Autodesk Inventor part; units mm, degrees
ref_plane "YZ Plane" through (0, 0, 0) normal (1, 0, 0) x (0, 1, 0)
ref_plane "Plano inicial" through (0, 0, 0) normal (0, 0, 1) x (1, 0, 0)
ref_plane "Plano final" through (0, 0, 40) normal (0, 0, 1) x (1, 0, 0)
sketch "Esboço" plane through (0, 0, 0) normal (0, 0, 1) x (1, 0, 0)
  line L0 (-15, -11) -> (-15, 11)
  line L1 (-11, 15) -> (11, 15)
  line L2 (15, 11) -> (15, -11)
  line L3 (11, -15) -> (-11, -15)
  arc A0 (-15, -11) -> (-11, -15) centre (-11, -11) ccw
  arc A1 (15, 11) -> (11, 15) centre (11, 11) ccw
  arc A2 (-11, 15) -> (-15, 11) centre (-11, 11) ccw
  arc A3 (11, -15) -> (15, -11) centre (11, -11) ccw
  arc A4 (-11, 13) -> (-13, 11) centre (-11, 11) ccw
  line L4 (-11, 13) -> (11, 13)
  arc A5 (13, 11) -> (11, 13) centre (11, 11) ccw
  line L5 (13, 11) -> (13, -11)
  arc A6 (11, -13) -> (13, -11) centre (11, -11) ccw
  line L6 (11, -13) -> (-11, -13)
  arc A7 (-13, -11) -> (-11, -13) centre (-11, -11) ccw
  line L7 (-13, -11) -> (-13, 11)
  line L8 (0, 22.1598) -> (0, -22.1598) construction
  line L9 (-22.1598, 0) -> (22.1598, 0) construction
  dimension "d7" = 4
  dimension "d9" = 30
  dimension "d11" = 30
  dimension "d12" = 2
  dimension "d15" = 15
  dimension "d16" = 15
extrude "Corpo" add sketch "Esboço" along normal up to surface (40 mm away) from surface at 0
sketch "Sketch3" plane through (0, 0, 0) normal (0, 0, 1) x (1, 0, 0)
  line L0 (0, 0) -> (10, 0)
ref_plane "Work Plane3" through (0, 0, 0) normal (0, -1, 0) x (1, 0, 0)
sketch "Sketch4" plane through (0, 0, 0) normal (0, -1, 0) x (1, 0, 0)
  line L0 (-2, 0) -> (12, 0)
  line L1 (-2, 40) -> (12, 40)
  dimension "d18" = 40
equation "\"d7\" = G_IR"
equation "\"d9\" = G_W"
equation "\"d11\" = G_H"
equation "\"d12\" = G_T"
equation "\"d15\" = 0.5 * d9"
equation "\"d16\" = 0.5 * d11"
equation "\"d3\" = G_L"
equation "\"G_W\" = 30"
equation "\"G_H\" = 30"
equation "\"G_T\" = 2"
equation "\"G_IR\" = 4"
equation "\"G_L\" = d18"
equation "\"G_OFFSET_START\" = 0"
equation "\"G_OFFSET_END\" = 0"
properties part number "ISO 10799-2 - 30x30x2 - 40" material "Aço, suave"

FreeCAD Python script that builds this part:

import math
import FreeCAD as App
import Part
import Sketcher
Q = App.Units.Quantity

doc = App.newDocument("Part")
body = doc.addObject("PartDesign::Body", "Body")

sketch1 = doc.addObject("Sketcher::SketchObject", "Sketch")
body.addObject(sketch1)
sketch1.AttachmentSupport = (doc.XY_Plane, [""])
sketch1.MapMode = "FlatFace"
sketch1.addGeometry([
    Part.LineSegment(App.Vector(-15, 11, 0), App.Vector(-15, -11, 0)),
    Part.ArcOfCircle(Part.Circle(App.Vector(-11, -11, 0), App.Vector(0, 0, 1), 4), math.radians(180), math.radians(270)),
    Part.LineSegment(App.Vector(-11, -15, 0), App.Vector(11, -15, 0)),
    Part.ArcOfCircle(Part.Circle(App.Vector(11, -11, 0), App.Vector(0, 0, 1), 4), math.radians(-90), math.radians(0)),
    Part.LineSegment(App.Vector(15, -11, 0), App.Vector(15, 11, 0)),
    Part.ArcOfCircle(Part.Circle(App.Vector(11, 11, 0), App.Vector(0, 0, 1), 4), math.radians(0), math.radians(90)),
    Part.LineSegment(App.Vector(11, 15, 0), App.Vector(-11, 15, 0)),
    Part.ArcOfCircle(Part.Circle(App.Vector(-11, 11, 0), App.Vector(0, 0, 1), 4), math.radians(90), math.radians(180)),
    Part.ArcOfCircle(Part.Circle(App.Vector(-11, 11, 0), App.Vector(0, 0, 1), 2), math.radians(90), math.radians(180)),
    Part.LineSegment(App.Vector(-11, 13, 0), App.Vector(11, 13, 0)),
    Part.ArcOfCircle(Part.Circle(App.Vector(11, 11, 0), App.Vector(0, 0, 1), 2), math.radians(0), math.radians(90)),
    Part.LineSegment(App.Vector(13, 11, 0), App.Vector(13, -11, 0)),
    Part.ArcOfCircle(Part.Circle(App.Vector(11, -11, 0), App.Vector(0, 0, 1), 2), math.radians(-90), math.radians(0)),
    Part.LineSegment(App.Vector(11, -13, 0), App.Vector(-11, -13, 0)),
    Part.ArcOfCircle(Part.Circle(App.Vector(-11, -11, 0), App.Vector(0, 0, 1), 2), math.radians(180), math.radians(270)),
    Part.LineSegment(App.Vector(-13, -11, 0), App.Vector(-13, 11, 0)),
], False)
sketch1.addConstraint([
    Sketcher.Constraint("Tangent", 0, 2, 1, 1),
    Sketcher.Constraint("Tangent", 1, 2, 2, 1),
    Sketcher.Constraint("Tangent", 2, 2, 3, 1),
    Sketcher.Constraint("Tangent", 3, 2, 4, 1),
    Sketcher.Constraint("Tangent", 4, 2, 5, 1),
    Sketcher.Constraint("Tangent", 5, 2, 6, 1),
    Sketcher.Constraint("Tangent", 6, 2, 7, 1),
    Sketcher.Constraint("Tangent", 7, 2, 0, 1),
    Sketcher.Constraint("Tangent", 8, 1, 9, 1),
    Sketcher.Constraint("Tangent", 9, 2, 10, 2),
    Sketcher.Constraint("Tangent", 10, 1, 11, 1),
    Sketcher.Constraint("Tangent", 11, 2, 12, 2),
    Sketcher.Constraint("Tangent", 12, 1, 13, 1),
    Sketcher.Constraint("Tangent", 13, 2, 14, 2),
    Sketcher.Constraint("Tangent", 14, 1, 15, 1),
    Sketcher.Constraint("Tangent", 15, 2, 8, 2),
    Sketcher.Constraint("Vertical", 0),
    Sketcher.Constraint("Horizontal", 2),
    Sketcher.Constraint("Vertical", 4),
    Sketcher.Constraint("Horizontal", 6),
    Sketcher.Constraint("Horizontal", 9),
    Sketcher.Constraint("Vertical", 11),
    Sketcher.Constraint("Horizontal", 13),
    Sketcher.Constraint("Vertical", 15),
    Sketcher.Constraint("Coincident", 8, 3, 7, 3),
    Sketcher.Constraint("Coincident", 10, 3, 5, 3),
    Sketcher.Constraint("Coincident", 12, 3, 3, 3),
    Sketcher.Constraint("Equal", 1, 3),
    Sketcher.Constraint("Equal", 3, 5),
    Sketcher.Constraint("Equal", 5, 7),
    Sketcher.Constraint("Equal", 12, 14),
    Sketcher.Constraint("Symmetric", 1, 3, 5, 3, -1, 1),
    Sketcher.Constraint("Equal", 13, 0),
    Sketcher.Constraint("Radius", 1, Q("4 mm")),
    Sketcher.Constraint("Radius", 8, Q("2 mm")),
    Sketcher.Constraint("DistanceX", 0, 2, -1, 1, Q("15 mm")),
])
pad1 = doc.addObject("PartDesign::Pad", "Pad")
body.addObject(pad1)
pad1.Profile = sketch1
pad1.Length = 40

doc.recompute()
